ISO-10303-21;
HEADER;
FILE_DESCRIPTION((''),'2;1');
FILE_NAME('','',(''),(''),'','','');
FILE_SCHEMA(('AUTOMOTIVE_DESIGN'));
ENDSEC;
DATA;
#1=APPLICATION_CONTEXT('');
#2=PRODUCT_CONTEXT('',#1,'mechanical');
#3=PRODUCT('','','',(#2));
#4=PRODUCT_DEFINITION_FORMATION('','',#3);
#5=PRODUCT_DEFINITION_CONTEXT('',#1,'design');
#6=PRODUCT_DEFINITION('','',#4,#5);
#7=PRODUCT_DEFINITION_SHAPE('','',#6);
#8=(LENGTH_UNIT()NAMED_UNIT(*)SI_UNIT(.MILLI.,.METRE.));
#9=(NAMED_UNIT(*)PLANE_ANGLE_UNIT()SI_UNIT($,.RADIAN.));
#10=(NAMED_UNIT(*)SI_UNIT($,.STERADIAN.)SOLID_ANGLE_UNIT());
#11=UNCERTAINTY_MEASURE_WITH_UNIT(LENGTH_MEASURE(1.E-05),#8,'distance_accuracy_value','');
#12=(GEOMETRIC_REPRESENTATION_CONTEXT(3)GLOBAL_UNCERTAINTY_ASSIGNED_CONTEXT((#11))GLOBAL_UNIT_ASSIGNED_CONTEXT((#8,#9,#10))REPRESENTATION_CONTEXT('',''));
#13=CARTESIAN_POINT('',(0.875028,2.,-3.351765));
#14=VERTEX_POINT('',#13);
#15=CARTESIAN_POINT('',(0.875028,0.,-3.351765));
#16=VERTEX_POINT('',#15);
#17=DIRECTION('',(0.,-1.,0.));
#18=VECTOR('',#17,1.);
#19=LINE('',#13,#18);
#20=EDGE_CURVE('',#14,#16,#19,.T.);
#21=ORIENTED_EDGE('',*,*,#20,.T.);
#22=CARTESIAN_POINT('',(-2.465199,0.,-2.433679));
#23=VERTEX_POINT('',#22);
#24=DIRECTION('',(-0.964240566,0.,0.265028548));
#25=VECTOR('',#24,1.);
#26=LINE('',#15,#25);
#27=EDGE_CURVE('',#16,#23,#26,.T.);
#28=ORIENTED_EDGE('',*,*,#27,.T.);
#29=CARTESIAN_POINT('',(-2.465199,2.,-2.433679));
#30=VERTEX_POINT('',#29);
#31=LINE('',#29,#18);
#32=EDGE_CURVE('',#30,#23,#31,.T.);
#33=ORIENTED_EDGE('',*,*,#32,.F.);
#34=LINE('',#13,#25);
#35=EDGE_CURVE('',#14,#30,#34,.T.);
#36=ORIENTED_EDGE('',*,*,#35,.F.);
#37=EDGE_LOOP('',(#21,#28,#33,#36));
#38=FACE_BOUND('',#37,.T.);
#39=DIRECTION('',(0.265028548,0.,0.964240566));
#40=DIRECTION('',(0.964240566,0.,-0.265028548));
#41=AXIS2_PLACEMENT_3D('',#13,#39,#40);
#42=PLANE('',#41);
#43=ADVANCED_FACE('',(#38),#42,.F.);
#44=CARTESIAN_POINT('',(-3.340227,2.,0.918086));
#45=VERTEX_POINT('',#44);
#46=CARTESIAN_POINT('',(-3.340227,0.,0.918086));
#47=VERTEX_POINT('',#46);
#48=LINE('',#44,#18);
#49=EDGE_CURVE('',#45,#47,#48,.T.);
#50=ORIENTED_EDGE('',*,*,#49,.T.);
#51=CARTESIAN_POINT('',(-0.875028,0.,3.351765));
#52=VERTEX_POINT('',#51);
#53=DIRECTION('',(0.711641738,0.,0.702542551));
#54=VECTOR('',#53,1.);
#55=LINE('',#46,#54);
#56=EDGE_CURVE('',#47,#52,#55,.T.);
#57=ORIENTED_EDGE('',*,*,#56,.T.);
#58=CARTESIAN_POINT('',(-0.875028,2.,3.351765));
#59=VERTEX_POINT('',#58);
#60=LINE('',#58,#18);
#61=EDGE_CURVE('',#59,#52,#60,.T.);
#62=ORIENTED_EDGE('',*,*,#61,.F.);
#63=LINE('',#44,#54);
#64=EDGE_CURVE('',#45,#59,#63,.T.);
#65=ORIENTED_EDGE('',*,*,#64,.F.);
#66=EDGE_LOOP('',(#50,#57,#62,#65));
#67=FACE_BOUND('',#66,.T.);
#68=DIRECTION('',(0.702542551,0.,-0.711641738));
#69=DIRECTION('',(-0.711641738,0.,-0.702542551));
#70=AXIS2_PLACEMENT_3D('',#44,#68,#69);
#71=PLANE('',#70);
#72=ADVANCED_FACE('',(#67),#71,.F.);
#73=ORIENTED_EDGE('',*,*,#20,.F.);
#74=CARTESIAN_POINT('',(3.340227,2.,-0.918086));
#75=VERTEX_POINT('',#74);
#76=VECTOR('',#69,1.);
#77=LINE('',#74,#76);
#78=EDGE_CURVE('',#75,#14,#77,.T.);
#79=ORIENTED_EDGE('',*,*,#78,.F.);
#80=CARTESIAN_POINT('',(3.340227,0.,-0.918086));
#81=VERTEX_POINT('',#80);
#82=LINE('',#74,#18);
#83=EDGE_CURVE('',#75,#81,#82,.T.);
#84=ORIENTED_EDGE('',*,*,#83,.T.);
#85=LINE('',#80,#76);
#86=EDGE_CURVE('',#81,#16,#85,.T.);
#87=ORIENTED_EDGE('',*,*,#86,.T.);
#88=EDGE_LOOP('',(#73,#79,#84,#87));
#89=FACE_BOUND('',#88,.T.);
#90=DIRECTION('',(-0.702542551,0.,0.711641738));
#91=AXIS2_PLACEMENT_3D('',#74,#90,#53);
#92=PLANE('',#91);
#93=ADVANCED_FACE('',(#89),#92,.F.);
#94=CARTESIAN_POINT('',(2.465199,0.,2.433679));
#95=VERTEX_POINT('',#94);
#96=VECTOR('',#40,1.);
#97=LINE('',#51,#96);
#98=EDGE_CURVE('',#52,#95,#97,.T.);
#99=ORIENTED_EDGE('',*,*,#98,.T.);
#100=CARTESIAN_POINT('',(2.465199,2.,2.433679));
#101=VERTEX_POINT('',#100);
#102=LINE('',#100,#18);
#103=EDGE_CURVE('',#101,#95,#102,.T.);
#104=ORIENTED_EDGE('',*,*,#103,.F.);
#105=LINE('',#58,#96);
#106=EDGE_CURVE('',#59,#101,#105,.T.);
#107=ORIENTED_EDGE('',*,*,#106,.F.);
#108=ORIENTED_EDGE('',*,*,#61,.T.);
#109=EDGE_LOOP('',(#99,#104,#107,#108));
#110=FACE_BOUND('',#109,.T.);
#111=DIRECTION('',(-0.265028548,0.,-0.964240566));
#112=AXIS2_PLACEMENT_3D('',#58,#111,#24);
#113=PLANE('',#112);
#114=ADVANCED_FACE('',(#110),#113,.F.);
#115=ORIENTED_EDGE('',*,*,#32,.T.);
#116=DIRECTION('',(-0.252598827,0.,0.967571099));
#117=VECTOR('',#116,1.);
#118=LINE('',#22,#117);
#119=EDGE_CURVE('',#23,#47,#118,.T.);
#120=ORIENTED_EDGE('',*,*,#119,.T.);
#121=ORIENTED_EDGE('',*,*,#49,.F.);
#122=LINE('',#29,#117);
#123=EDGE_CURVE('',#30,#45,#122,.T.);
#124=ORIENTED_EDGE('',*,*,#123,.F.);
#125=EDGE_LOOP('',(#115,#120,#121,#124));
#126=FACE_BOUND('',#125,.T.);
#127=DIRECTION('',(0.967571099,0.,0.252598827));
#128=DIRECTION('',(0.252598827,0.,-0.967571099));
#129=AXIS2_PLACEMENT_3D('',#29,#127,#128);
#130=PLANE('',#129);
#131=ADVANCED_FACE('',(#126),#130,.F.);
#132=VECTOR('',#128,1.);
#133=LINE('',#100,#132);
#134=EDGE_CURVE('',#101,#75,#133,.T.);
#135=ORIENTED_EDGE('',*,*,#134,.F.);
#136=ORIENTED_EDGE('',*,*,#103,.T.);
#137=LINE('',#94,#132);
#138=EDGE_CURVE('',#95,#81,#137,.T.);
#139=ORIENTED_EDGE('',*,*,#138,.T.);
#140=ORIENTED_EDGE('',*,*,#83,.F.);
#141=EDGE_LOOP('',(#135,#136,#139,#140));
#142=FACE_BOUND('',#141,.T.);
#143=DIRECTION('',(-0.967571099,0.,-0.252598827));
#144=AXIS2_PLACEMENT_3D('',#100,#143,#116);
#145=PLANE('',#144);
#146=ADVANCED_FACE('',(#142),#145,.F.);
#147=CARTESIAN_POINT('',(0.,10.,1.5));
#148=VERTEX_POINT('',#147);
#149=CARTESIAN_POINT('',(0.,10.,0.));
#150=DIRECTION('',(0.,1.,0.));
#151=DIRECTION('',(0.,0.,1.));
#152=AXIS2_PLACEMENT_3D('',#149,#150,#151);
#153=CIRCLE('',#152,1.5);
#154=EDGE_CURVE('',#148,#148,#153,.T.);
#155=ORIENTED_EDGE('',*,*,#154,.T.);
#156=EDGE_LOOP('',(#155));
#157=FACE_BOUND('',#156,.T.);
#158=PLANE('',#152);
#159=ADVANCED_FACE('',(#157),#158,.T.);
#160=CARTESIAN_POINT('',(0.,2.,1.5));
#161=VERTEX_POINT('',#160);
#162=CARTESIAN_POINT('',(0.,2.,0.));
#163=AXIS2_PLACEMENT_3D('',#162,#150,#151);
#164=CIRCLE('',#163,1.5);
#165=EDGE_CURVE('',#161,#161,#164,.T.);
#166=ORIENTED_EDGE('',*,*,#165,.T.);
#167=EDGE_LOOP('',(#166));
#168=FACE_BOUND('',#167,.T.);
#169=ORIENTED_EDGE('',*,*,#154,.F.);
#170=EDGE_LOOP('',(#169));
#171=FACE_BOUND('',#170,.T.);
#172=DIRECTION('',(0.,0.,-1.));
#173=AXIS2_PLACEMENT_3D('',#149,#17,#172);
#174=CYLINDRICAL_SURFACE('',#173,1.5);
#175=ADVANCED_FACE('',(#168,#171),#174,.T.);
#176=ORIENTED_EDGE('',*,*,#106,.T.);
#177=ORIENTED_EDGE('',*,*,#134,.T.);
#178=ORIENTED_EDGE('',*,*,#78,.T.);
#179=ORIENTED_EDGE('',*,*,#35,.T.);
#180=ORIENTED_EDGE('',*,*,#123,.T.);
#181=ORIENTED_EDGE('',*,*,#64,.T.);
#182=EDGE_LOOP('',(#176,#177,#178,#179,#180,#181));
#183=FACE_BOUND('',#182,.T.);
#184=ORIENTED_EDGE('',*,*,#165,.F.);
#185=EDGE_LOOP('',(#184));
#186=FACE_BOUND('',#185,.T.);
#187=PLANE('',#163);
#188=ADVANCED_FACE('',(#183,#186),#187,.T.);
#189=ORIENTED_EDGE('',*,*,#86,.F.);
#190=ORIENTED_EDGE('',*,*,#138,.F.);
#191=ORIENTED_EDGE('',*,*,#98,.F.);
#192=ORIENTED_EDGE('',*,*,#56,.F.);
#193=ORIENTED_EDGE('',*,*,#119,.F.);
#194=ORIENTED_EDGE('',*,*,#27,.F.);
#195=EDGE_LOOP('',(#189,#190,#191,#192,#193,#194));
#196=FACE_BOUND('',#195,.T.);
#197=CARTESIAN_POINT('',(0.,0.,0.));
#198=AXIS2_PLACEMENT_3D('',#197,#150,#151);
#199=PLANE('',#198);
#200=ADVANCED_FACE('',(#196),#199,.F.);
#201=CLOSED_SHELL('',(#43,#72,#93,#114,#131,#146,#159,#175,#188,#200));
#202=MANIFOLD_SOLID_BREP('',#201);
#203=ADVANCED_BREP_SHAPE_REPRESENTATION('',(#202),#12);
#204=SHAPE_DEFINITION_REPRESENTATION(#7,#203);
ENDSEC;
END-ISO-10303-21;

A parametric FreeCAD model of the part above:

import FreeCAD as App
import Part
import Sketcher
from FreeCAD import Vector
Q = App.Units.Quantity


def add_polygon(sketch, points):
    """Adds a closed chain of lines whose ends are joined by coincident constraints."""
    first, n = sketch.GeometryCount, len(points)
    for a, b in zip(points, points[1:] + points[:1]):
        sketch.addGeometry(Part.LineSegment(App.Vector(*a, 0), App.Vector(*b, 0)), False)
    for i in range(n):
        sketch.addConstraint(Sketcher.Constraint("Coincident", first + i, 2, first + (i + 1) % n, 1))

doc = App.newDocument("Part")
body = doc.addObject("PartDesign::Body", "Body")

# Sketch on XZ plane
sketch1 = body.newObject("Sketcher::SketchObject", "Sketch")
sketch1.AttachmentSupport = (doc.getObject("XZ_Plane"), [""])
sketch1.MapMode = "FlatFace"
add_polygon(sketch1, [(2.5, 2.4), (3.3, -0.9), (0.9, -3.4), (-2.5, -2.4), (-3.3, 0.9), (-0.9, 3.4)])  # lines 0-5
sketch1.addConstraint(Sketcher.Constraint("Symmetric", 0, 2, 3, 2, -1, 1))
sketch1.addConstraint(Sketcher.Constraint("Symmetric", 1, 2, 4, 2, -1, 1))
sketch1.addConstraint(Sketcher.Constraint("Symmetric", 2, 2, 5, 2, -1, 1))
sketch1.addConstraint(Sketcher.Constraint("Equal", 0, 1))
sketch1.addConstraint(Sketcher.Constraint("Equal", 1, 2))
sketch1.addConstraint(Sketcher.Constraint("Distance", 0, Q("3.464102 mm")))
sketch1.addConstraint(Sketcher.Constraint("DistanceX", 2, 2, -1, 1, Q("2.465199 mm")))
sketch1.addConstraint(Sketcher.Constraint("DistanceX", 1, 2, 0, 2, Q("2.465199 mm")))
sketch1.addConstraint(Sketcher.Constraint("DistanceX", -1, 1, 1, 2, Q("0.875028 mm")))
pad1 = body.newObject("PartDesign::Pad", "Pad")
pad1.Profile = sketch1
pad1.Length = 2
pad1.Reversed = True

# Sketch on XZ plane
sketch2 = body.newObject("Sketcher::SketchObject", "Sketch001")
sketch2.AttachmentSupport = (doc.getObject("XZ_Plane"), [""])
sketch2.MapMode = "FlatFace"
sketch2.AttachmentOffset = App.Placement(Vector(0, 0, -2), App.Rotation())
sketch2.addGeometry(Part.Circle(Vector(0, 0, 0), Vector(0, 0, 1), 1.5), False)
sketch2.addConstraint(Sketcher.Constraint("Coincident", 0, 3, -1, 1))
sketch2.addConstraint(Sketcher.Constraint("Diameter", 0, Q("3 mm")))
pad2 = body.newObject("PartDesign::Pad", "Pad001")
pad2.Profile = sketch2
pad2.Length = 8
pad2.Reversed = True

doc.recompute()
